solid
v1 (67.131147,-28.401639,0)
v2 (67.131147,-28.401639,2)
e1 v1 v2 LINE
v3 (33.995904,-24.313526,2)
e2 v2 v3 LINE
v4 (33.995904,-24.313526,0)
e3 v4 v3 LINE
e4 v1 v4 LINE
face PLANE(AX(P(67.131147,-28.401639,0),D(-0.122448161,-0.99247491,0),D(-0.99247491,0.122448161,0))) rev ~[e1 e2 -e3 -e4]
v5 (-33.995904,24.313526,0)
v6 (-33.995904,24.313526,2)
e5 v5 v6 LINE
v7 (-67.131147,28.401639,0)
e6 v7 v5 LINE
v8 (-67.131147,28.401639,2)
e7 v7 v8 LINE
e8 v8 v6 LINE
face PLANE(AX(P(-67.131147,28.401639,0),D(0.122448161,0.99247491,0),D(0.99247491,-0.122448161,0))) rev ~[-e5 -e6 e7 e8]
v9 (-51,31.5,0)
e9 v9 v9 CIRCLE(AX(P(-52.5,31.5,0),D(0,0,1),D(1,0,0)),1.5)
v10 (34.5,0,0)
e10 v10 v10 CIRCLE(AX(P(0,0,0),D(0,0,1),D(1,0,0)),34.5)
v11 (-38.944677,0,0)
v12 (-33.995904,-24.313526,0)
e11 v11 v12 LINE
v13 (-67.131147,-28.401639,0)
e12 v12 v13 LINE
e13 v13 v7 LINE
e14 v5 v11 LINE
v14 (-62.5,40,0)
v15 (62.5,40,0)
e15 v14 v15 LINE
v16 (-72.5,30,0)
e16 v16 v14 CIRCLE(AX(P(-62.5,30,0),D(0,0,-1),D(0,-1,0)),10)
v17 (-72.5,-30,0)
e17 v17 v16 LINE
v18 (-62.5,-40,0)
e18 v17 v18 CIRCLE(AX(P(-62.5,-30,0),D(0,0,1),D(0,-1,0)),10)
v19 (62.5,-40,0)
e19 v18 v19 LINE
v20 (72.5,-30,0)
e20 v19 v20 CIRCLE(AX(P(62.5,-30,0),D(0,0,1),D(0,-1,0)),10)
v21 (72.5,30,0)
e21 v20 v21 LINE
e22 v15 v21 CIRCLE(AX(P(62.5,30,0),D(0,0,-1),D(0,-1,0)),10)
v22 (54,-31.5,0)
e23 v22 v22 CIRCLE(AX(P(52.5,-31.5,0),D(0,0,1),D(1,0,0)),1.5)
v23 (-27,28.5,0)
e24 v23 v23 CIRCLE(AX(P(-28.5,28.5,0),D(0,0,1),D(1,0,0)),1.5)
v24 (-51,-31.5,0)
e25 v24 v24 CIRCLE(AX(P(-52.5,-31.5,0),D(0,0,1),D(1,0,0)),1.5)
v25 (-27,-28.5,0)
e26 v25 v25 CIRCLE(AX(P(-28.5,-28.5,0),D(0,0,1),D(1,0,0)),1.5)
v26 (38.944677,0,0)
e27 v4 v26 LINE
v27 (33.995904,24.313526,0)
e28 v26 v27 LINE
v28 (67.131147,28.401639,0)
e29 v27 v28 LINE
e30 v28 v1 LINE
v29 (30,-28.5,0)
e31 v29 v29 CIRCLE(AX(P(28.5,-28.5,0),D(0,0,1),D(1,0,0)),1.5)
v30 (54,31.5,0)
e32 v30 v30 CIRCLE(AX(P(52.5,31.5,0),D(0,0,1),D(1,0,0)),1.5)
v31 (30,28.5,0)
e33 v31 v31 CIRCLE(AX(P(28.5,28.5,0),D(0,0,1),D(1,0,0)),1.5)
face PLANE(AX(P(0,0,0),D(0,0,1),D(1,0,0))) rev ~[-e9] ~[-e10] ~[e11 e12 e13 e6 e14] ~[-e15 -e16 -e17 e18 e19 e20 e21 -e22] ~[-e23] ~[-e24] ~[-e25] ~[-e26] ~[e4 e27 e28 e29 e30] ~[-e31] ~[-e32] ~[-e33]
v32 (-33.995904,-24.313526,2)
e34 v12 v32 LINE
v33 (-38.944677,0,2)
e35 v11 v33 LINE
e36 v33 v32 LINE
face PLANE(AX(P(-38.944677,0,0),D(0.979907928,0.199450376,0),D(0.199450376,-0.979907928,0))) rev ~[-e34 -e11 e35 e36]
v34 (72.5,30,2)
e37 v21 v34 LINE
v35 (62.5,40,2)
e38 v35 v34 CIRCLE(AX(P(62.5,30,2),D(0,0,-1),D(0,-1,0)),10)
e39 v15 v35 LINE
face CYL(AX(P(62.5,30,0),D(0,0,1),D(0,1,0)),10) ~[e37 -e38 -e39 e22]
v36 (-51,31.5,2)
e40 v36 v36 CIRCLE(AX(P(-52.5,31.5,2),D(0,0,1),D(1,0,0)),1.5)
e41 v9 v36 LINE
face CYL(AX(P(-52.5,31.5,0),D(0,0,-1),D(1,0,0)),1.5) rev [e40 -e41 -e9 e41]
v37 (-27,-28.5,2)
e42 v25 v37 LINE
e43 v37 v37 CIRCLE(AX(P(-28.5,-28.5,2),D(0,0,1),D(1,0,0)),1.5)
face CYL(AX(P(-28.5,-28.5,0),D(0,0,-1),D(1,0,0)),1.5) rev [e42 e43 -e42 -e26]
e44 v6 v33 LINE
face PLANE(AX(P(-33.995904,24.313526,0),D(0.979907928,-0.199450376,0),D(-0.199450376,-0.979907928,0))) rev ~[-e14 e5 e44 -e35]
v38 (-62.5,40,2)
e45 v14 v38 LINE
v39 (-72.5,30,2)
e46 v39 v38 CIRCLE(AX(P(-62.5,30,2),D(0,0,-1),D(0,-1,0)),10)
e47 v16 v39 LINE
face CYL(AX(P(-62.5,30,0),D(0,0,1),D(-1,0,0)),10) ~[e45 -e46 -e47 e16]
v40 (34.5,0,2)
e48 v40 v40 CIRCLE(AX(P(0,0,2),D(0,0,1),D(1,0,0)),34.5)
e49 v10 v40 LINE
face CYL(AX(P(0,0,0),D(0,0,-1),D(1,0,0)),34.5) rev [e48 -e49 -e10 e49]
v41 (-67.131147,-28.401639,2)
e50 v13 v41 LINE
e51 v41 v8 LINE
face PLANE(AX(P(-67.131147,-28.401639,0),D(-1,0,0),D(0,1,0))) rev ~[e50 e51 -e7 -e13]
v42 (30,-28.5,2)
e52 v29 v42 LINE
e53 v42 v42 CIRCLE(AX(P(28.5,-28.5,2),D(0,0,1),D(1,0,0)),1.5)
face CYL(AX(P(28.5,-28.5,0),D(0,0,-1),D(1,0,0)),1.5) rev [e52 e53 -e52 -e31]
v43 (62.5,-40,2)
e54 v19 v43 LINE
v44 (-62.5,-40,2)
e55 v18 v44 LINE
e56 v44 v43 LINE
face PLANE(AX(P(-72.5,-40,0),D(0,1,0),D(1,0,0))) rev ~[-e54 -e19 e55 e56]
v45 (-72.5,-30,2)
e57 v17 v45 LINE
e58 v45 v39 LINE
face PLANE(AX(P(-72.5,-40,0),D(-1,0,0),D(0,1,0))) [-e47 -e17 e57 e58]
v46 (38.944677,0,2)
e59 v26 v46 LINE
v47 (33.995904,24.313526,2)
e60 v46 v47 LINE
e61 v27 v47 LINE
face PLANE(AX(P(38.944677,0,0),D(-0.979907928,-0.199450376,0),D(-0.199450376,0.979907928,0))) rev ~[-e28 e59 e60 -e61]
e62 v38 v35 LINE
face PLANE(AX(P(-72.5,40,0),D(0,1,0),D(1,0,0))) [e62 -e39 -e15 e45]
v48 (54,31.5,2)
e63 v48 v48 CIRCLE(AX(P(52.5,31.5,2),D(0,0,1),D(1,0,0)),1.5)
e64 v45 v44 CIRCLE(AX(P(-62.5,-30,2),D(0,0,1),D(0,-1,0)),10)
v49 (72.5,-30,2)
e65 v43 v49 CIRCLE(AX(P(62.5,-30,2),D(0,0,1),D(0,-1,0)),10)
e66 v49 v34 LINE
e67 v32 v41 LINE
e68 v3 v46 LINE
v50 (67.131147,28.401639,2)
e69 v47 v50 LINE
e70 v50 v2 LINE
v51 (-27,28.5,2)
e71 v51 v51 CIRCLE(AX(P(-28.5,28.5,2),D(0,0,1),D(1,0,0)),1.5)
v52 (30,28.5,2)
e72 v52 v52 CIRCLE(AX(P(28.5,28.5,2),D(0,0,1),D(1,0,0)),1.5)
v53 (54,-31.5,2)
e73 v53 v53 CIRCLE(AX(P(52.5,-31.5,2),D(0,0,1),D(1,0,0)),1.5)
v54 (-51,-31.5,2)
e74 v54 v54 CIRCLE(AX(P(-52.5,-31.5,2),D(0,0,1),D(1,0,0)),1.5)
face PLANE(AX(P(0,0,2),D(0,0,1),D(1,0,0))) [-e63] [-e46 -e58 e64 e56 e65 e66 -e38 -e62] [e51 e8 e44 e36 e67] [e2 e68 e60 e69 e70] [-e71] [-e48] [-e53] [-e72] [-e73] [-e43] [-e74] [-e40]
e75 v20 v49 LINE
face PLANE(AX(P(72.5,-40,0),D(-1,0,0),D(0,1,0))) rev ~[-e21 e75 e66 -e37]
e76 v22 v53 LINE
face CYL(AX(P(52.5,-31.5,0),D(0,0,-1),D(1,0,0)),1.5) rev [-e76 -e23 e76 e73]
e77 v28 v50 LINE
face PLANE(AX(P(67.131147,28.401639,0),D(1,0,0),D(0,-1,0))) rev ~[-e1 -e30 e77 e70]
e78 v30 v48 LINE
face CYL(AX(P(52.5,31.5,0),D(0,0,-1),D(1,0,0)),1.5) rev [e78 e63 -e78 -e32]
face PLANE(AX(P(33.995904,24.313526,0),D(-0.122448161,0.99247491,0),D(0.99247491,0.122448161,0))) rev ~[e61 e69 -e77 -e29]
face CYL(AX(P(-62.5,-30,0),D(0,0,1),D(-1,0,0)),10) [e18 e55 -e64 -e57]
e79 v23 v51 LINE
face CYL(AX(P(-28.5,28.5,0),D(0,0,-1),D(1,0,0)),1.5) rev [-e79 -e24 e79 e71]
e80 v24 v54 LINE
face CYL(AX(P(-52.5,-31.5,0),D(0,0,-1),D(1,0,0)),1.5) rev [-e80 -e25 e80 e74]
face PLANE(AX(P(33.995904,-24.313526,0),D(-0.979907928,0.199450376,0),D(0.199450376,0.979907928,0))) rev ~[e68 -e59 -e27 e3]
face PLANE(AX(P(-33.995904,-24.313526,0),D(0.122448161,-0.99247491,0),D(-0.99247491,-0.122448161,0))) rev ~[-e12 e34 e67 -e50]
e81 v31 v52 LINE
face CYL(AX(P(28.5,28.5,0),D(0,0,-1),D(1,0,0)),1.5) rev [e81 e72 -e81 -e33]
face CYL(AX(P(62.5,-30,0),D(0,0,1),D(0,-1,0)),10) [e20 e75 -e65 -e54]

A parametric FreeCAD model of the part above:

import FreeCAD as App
import Part
import Sketcher
Q = App.Units.Quantity


def edges_at(feature, points):
    """Names of the edges that pass closest to the given points."""
    edges = feature.Shape.Edges
    near = lambda p: min(range(len(edges)), key=lambda i: edges[i].distToShape(Part.Vertex(*p))[0])
    return sorted({f"Edge{near(p) + 1}" for p in points})

doc = App.newDocument("Part")
body = doc.addObject("PartDesign::Body", "Body")

# Sketch on XY plane
sketch1 = doc.addObject("Sketcher::SketchObject", "Sketch")
body.addObject(sketch1)
sketch1.AttachmentSupport = (doc.XY_Plane, [""])
sketch1.MapMode = "FlatFace"
sketch1.addGeometry([
    Part.LineSegment(App.Vector(-72.5, 40, 0), App.Vector(-72.5, -40, 0)),  # 0
    Part.LineSegment(App.Vector(-72.5, -40, 0), App.Vector(72.5, -40, 0)),  # 1
    Part.LineSegment(App.Vector(72.5, -40, 0), App.Vector(72.5, 40, 0)),  # 2
    Part.LineSegment(App.Vector(72.5, 40, 0), App.Vector(-72.5, 40, 0)),  # 3
    Part.Circle(App.Vector(-52.5, -31.5, 0), App.Vector(0, 0, 1), 1.5),  # 4
    Part.Circle(App.Vector(-28.5, -28.5, 0), App.Vector(0, 0, 1), 1.5),  # 5
    Part.Circle(App.Vector(28.5, -28.5, 0), App.Vector(0, 0, 1), 1.5),  # 6
    Part.Circle(App.Vector(52.5, -31.5, 0), App.Vector(0, 0, 1), 1.5),  # 7
    Part.LineSegment(App.Vector(-67.131147, -28.401639, 0), App.Vector(-67.131147, 28.401639, 0)),  # 8
    Part.LineSegment(App.Vector(-67.131147, 28.401639, 0), App.Vector(-33.995904, 24.313526, 0)),  # 9
    Part.LineSegment(App.Vector(-33.995904, 24.313526, 0), App.Vector(-38.944677, 0, 0)),  # 10
    Part.LineSegment(App.Vector(-38.944677, 0, 0), App.Vector(-33.995904, -24.313526, 0)),  # 11
    Part.LineSegment(App.Vector(-33.995904, -24.313526, 0), App.Vector(-67.131147, -28.401639, 0)),  # 12
    Part.Circle(App.Vector(0, 0, 0), App.Vector(0, 0, 1), 34.5),  # 13
    Part.Circle(App.Vector(-52.5, 31.5, 0), App.Vector(0, 0, 1), 1.5),  # 14
    Part.Circle(App.Vector(-28.5, 28.5, 0), App.Vector(0, 0, 1), 1.5),  # 15
    Part.LineSegment(App.Vector(67.131147, -28.401639, 0), App.Vector(33.995904, -24.313526, 0)),  # 16
    Part.LineSegment(App.Vector(33.995904, -24.313526, 0), App.Vector(38.944677, 0, 0)),  # 17
    Part.LineSegment(App.Vector(38.944677, 0, 0), App.Vector(33.995904, 24.313526, 0)),  # 18
    Part.LineSegment(App.Vector(33.995904, 24.313526, 0), App.Vector(67.131147, 28.401639, 0)),  # 19
    Part.LineSegment(App.Vector(67.131147, 28.401639, 0), App.Vector(67.131147, -28.401639, 0)),  # 20
    Part.Circle(App.Vector(28.5, 28.5, 0), App.Vector(0, 0, 1), 1.5),  # 21
    Part.Circle(App.Vector(52.5, 31.5, 0), App.Vector(0, 0, 1), 1.5),  # 22
], False)
sketch1.addConstraint([
    Sketcher.Constraint("Coincident", 0, 2, 1, 1),
    Sketcher.Constraint("Coincident", 1, 2, 2, 1),
    Sketcher.Constraint("Coincident", 2, 2, 3, 1),
    Sketcher.Constraint("Coincident", 3, 2, 0, 1),
    Sketcher.Constraint("Coincident", 8, 2, 9, 1),
    Sketcher.Constraint("Coincident", 9, 2, 10, 1),
    Sketcher.Constraint("Coincident", 10, 2, 11, 1),
    Sketcher.Constraint("Coincident", 11, 2, 12, 1),
    Sketcher.Constraint("Coincident", 12, 2, 8, 1),
    Sketcher.Constraint("Coincident", 16, 2, 17, 1),
    Sketcher.Constraint("Coincident", 17, 2, 18, 1),
    Sketcher.Constraint("Coincident", 18, 2, 19, 1),
    Sketcher.Constraint("Coincident", 19, 2, 20, 1),
    Sketcher.Constraint("Coincident", 20, 2, 16, 1),
    Sketcher.Constraint("Vertical", 0),
    Sketcher.Constraint("Horizontal", 1),
    Sketcher.Constraint("Vertical", 2),
    Sketcher.Constraint("Horizontal", 3),
    Sketcher.Constraint("Vertical", 8),
    Sketcher.Constraint("Vertical", 20),
    Sketcher.Constraint("Coincident", 13, 3, -1, 1),
    Sketcher.Constraint("Equal", 4, 5),
    Sketcher.Constraint("Equal", 5, 6),
    Sketcher.Constraint("Equal", 6, 7),
    Sketcher.Constraint("Equal", 7, 14),
    Sketcher.Constraint("Equal", 14, 15),
    Sketcher.Constraint("Equal", 15, 21),
    Sketcher.Constraint("Equal", 21, 22),
    Sketcher.Constraint("Symmetric", 7, 3, 14, 3, -1, 1),
    Sketcher.Constraint("Symmetric", 6, 3, 15, 3, -1, 1),
    Sketcher.Constraint("Symmetric", 5, 3, 21, 3, -1, 1),
    Sketcher.Constraint("Symmetric", 4, 3, 22, 3, -1, 1),
    Sketcher.Constraint("Symmetric", 0, 2, 2, 2, -1, 1),
    Sketcher.Constraint("Symmetric", 9, 2, 16, 2, -1, 1),
    Sketcher.Constraint("Symmetric", 10, 2, 17, 2, -1, 1),
    Sketcher.Constraint("Symmetric", 11, 2, 18, 2, -1, 1),
    Sketcher.Constraint("Symmetric", 12, 2, 19, 2, -1, 1),
    Sketcher.Constraint("Symmetric", 5, 3, 6, 3, -2),
    Sketcher.Constraint("Symmetric", 4, 3, 7, 3, -2),
    Sketcher.Constraint("Symmetric", 11, 2, 16, 2, -2),
    Sketcher.Constraint("PointOnObject", 10, 2, -1),
    Sketcher.Constraint("Parallel", 9, 16),
    Sketcher.Constraint("Horizontal", 8, 2, 19, 2),
    Sketcher.Constraint("Diameter", 4, Q("3 mm")),
    Sketcher.Constraint("Diameter", 13, Q("69 mm")),
    Sketcher.Constraint("DistanceX", 1, 1, 1, 2, Q("145 mm")),
    Sketcher.Constraint("DistanceY", 0, 2, 0, 1, Q("80 mm")),
    Sketcher.Constraint("DistanceX", 4, 3, 5, 3, Q("24 mm")),
    Sketcher.Constraint("DistanceY", 4, 3, 5, 3, Q("3 mm")),
    Sketcher.Constraint("DistanceX", 5, 3, 6, 3, Q("57 mm")),
    Sketcher.Constraint("DistanceY", 4, 3, 14, 3, Q("63 mm")),
    Sketcher.Constraint("Distance", 9, Q("33.386479 mm")),
    Sketcher.Constraint("Distance", 10, Q("24.812052 mm")),
    Sketcher.Constraint("DistanceY", 8, 1, 8, 2, Q("56.803278 mm")),
    Sketcher.Constraint("DistanceX", 12, 2, 10, 2, Q("28.18647 mm")),
    Sketcher.Constraint("DistanceX", 8, 2, -1, 1, Q("67.131147 mm")),
])
pad1 = doc.addObject("PartDesign::Pad", "Pad")
body.addObject(pad1)
pad1.Profile = sketch1
pad1.Length = 2
doc.recompute()

fillet = doc.addObject("PartDesign::Fillet", "Fillet")
body.addObject(fillet)
fillet.Base = (pad1, edges_at(pad1, [
    (-72.5, 40, 1),
    (72.5, 40, 1),
    (72.5, -40, 1),
    (-72.5, -40, 1),
]))
fillet.Radius = 10

doc.recompute()
